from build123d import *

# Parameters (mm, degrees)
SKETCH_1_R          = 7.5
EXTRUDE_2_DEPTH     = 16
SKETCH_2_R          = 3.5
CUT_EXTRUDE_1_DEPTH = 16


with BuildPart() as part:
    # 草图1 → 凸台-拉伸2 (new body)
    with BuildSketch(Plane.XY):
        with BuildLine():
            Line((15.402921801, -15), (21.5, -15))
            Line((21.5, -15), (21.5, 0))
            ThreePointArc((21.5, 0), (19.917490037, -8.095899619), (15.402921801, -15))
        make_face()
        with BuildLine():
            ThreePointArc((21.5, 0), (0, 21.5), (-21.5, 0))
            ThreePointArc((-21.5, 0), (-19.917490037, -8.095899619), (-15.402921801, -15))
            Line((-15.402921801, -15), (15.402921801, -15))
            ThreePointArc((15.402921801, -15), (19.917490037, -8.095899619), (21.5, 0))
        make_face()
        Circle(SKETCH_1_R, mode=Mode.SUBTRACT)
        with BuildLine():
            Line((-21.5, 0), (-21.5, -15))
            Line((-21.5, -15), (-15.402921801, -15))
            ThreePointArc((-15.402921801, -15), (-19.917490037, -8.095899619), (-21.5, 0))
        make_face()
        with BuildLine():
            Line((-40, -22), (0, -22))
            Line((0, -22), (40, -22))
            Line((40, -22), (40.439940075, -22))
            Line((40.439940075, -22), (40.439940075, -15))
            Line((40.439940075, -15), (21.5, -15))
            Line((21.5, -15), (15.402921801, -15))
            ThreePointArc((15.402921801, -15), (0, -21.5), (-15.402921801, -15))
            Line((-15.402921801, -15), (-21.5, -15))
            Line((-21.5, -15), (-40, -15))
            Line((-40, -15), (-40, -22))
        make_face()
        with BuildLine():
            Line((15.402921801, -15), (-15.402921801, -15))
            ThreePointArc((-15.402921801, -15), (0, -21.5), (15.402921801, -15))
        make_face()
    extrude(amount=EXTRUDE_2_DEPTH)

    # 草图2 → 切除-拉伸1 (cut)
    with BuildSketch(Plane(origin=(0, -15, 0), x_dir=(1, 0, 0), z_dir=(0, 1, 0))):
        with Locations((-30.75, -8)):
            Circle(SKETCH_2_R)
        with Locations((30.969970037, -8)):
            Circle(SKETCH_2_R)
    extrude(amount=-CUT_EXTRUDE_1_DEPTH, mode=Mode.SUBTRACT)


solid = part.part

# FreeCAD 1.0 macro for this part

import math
import FreeCAD as App
import Part
import Sketcher

doc = App.newDocument("Part")
body = doc.addObject("PartDesign::Body", "Body")

# Sketch on XY plane
sketch1 = body.newObject("Sketcher::SketchObject", "Sketch")
sketch1.AttachmentSupport = (doc.getObject("XY_Plane"), [""])
sketch1.MapMode = "FlatFace"
sketch1.addGeometry([
    Part.LineSegment(App.Vector(22, -15, 0), App.Vector(22, 0, 0)),  # 0
    Part.ArcOfCircle(Part.Circle(App.Vector(0, 0, 0), App.Vector(0, 0, 1), 22), math.radians(0), math.radians(180)),  # 1
    Part.LineSegment(App.Vector(-22, 0, 0), App.Vector(-22, -15, 0)),  # 2
    Part.LineSegment(App.Vector(-22, -15, 0), App.Vector(-40, -15, 0)),  # 3
    Part.LineSegment(App.Vector(-40, -15, 0), App.Vector(-40, -22, 0)),  # 4
    Part.LineSegment(App.Vector(-40, -22, 0), App.Vector(40, -22, 0)),  # 5
    Part.LineSegment(App.Vector(40, -22, 0), App.Vector(40, -15, 0)),  # 6
    Part.LineSegment(App.Vector(40, -15, 0), App.Vector(22, -15, 0)),  # 7
    Part.Circle(App.Vector(0, 0, 0), App.Vector(0, 0, 1), 8),  # 8
], False)
sketch1.addConstraint([
    Sketcher.Constraint("Tangent", 0, 2, 1, 1),
    Sketcher.Constraint("Tangent", 1, 2, 2, 1),
    Sketcher.Constraint("Coincident", 2, 2, 3, 1),
    Sketcher.Constraint("Coincident", 3, 2, 4, 1),
    Sketcher.Constraint("Coincident", 4, 2, 5, 1),
    Sketcher.Constraint("Coincident", 5, 2, 6, 1),
    Sketcher.Constraint("Coincident", 6, 2, 7, 1),
    Sketcher.Constraint("Coincident", 7, 2, 0, 1),
    Sketcher.Constraint("Vertical", 0),
    Sketcher.Constraint("Vertical", 2),
    Sketcher.Constraint("Horizontal", 3),
    Sketcher.Constraint("Vertical", 4),
    Sketcher.Constraint("Horizontal", 5),
    Sketcher.Constraint("Vertical", 6),
    Sketcher.Constraint("Horizontal", 7),
    Sketcher.Constraint("Coincident", 1, 3, -1, 1),
    Sketcher.Constraint("Coincident", 8, 3, -1, 1),
    Sketcher.Constraint("Horizontal", 3, 2, 6, 2),
    Sketcher.Constraint("Diameter", 8, 15.0),
    Sketcher.Constraint("Radius", 1, 21.5),
    Sketcher.Constraint("DistanceY", 0, 1, 0, 2, 15.0),
    Sketcher.Constraint("DistanceY", 4, 2, 4, 1, 7.0),
    Sketcher.Constraint("DistanceX", 3, 2, 3, 1, 18.5),
    Sketcher.Constraint("DistanceX", 5, 1, 5, 2, 80.43994),
])
pad1 = body.newObject("PartDesign::Pad", "Pad")
pad1.Profile = sketch1
pad1.Length = 16

# Sketch on XZ plane
sketch2 = body.newObject("Sketcher::SketchObject", "Sketch001")
sketch2.AttachmentSupport = (doc.getObject("XZ_Plane"), [""])
sketch2.MapMode = "FlatFace"
sketch2.AttachmentOffset = App.Placement(App.Vector(0, 0, 15), App.Rotation())
sketch2.addGeometry([
    Part.Circle(App.Vector(-30.8, 8, 0), App.Vector(0, 0, 1), 3.5),
    Part.Circle(App.Vector(31, 8, 0), App.Vector(0, 0, 1), 3.5),
], False)
sketch2.addConstraint([
    Sketcher.Constraint("Equal", 0, 1),
    Sketcher.Constraint("Horizontal", 0, 3, 1, 3),
    Sketcher.Constraint("Diameter", 0, 7.0),
    Sketcher.Constraint("DistanceY", -1, 1, 0, 3, 8.0),
    Sketcher.Constraint("DistanceX", 0, 3, -1, 1, 30.75),
    Sketcher.Constraint("DistanceX", -1, 1, 1, 3, 30.96997),
])
pocket1 = body.newObject("PartDesign::Pocket", "Pocket")
pocket1.Profile = sketch2
pocket1.Length = 16
pocket1.Reversed = True

doc.recompute()
